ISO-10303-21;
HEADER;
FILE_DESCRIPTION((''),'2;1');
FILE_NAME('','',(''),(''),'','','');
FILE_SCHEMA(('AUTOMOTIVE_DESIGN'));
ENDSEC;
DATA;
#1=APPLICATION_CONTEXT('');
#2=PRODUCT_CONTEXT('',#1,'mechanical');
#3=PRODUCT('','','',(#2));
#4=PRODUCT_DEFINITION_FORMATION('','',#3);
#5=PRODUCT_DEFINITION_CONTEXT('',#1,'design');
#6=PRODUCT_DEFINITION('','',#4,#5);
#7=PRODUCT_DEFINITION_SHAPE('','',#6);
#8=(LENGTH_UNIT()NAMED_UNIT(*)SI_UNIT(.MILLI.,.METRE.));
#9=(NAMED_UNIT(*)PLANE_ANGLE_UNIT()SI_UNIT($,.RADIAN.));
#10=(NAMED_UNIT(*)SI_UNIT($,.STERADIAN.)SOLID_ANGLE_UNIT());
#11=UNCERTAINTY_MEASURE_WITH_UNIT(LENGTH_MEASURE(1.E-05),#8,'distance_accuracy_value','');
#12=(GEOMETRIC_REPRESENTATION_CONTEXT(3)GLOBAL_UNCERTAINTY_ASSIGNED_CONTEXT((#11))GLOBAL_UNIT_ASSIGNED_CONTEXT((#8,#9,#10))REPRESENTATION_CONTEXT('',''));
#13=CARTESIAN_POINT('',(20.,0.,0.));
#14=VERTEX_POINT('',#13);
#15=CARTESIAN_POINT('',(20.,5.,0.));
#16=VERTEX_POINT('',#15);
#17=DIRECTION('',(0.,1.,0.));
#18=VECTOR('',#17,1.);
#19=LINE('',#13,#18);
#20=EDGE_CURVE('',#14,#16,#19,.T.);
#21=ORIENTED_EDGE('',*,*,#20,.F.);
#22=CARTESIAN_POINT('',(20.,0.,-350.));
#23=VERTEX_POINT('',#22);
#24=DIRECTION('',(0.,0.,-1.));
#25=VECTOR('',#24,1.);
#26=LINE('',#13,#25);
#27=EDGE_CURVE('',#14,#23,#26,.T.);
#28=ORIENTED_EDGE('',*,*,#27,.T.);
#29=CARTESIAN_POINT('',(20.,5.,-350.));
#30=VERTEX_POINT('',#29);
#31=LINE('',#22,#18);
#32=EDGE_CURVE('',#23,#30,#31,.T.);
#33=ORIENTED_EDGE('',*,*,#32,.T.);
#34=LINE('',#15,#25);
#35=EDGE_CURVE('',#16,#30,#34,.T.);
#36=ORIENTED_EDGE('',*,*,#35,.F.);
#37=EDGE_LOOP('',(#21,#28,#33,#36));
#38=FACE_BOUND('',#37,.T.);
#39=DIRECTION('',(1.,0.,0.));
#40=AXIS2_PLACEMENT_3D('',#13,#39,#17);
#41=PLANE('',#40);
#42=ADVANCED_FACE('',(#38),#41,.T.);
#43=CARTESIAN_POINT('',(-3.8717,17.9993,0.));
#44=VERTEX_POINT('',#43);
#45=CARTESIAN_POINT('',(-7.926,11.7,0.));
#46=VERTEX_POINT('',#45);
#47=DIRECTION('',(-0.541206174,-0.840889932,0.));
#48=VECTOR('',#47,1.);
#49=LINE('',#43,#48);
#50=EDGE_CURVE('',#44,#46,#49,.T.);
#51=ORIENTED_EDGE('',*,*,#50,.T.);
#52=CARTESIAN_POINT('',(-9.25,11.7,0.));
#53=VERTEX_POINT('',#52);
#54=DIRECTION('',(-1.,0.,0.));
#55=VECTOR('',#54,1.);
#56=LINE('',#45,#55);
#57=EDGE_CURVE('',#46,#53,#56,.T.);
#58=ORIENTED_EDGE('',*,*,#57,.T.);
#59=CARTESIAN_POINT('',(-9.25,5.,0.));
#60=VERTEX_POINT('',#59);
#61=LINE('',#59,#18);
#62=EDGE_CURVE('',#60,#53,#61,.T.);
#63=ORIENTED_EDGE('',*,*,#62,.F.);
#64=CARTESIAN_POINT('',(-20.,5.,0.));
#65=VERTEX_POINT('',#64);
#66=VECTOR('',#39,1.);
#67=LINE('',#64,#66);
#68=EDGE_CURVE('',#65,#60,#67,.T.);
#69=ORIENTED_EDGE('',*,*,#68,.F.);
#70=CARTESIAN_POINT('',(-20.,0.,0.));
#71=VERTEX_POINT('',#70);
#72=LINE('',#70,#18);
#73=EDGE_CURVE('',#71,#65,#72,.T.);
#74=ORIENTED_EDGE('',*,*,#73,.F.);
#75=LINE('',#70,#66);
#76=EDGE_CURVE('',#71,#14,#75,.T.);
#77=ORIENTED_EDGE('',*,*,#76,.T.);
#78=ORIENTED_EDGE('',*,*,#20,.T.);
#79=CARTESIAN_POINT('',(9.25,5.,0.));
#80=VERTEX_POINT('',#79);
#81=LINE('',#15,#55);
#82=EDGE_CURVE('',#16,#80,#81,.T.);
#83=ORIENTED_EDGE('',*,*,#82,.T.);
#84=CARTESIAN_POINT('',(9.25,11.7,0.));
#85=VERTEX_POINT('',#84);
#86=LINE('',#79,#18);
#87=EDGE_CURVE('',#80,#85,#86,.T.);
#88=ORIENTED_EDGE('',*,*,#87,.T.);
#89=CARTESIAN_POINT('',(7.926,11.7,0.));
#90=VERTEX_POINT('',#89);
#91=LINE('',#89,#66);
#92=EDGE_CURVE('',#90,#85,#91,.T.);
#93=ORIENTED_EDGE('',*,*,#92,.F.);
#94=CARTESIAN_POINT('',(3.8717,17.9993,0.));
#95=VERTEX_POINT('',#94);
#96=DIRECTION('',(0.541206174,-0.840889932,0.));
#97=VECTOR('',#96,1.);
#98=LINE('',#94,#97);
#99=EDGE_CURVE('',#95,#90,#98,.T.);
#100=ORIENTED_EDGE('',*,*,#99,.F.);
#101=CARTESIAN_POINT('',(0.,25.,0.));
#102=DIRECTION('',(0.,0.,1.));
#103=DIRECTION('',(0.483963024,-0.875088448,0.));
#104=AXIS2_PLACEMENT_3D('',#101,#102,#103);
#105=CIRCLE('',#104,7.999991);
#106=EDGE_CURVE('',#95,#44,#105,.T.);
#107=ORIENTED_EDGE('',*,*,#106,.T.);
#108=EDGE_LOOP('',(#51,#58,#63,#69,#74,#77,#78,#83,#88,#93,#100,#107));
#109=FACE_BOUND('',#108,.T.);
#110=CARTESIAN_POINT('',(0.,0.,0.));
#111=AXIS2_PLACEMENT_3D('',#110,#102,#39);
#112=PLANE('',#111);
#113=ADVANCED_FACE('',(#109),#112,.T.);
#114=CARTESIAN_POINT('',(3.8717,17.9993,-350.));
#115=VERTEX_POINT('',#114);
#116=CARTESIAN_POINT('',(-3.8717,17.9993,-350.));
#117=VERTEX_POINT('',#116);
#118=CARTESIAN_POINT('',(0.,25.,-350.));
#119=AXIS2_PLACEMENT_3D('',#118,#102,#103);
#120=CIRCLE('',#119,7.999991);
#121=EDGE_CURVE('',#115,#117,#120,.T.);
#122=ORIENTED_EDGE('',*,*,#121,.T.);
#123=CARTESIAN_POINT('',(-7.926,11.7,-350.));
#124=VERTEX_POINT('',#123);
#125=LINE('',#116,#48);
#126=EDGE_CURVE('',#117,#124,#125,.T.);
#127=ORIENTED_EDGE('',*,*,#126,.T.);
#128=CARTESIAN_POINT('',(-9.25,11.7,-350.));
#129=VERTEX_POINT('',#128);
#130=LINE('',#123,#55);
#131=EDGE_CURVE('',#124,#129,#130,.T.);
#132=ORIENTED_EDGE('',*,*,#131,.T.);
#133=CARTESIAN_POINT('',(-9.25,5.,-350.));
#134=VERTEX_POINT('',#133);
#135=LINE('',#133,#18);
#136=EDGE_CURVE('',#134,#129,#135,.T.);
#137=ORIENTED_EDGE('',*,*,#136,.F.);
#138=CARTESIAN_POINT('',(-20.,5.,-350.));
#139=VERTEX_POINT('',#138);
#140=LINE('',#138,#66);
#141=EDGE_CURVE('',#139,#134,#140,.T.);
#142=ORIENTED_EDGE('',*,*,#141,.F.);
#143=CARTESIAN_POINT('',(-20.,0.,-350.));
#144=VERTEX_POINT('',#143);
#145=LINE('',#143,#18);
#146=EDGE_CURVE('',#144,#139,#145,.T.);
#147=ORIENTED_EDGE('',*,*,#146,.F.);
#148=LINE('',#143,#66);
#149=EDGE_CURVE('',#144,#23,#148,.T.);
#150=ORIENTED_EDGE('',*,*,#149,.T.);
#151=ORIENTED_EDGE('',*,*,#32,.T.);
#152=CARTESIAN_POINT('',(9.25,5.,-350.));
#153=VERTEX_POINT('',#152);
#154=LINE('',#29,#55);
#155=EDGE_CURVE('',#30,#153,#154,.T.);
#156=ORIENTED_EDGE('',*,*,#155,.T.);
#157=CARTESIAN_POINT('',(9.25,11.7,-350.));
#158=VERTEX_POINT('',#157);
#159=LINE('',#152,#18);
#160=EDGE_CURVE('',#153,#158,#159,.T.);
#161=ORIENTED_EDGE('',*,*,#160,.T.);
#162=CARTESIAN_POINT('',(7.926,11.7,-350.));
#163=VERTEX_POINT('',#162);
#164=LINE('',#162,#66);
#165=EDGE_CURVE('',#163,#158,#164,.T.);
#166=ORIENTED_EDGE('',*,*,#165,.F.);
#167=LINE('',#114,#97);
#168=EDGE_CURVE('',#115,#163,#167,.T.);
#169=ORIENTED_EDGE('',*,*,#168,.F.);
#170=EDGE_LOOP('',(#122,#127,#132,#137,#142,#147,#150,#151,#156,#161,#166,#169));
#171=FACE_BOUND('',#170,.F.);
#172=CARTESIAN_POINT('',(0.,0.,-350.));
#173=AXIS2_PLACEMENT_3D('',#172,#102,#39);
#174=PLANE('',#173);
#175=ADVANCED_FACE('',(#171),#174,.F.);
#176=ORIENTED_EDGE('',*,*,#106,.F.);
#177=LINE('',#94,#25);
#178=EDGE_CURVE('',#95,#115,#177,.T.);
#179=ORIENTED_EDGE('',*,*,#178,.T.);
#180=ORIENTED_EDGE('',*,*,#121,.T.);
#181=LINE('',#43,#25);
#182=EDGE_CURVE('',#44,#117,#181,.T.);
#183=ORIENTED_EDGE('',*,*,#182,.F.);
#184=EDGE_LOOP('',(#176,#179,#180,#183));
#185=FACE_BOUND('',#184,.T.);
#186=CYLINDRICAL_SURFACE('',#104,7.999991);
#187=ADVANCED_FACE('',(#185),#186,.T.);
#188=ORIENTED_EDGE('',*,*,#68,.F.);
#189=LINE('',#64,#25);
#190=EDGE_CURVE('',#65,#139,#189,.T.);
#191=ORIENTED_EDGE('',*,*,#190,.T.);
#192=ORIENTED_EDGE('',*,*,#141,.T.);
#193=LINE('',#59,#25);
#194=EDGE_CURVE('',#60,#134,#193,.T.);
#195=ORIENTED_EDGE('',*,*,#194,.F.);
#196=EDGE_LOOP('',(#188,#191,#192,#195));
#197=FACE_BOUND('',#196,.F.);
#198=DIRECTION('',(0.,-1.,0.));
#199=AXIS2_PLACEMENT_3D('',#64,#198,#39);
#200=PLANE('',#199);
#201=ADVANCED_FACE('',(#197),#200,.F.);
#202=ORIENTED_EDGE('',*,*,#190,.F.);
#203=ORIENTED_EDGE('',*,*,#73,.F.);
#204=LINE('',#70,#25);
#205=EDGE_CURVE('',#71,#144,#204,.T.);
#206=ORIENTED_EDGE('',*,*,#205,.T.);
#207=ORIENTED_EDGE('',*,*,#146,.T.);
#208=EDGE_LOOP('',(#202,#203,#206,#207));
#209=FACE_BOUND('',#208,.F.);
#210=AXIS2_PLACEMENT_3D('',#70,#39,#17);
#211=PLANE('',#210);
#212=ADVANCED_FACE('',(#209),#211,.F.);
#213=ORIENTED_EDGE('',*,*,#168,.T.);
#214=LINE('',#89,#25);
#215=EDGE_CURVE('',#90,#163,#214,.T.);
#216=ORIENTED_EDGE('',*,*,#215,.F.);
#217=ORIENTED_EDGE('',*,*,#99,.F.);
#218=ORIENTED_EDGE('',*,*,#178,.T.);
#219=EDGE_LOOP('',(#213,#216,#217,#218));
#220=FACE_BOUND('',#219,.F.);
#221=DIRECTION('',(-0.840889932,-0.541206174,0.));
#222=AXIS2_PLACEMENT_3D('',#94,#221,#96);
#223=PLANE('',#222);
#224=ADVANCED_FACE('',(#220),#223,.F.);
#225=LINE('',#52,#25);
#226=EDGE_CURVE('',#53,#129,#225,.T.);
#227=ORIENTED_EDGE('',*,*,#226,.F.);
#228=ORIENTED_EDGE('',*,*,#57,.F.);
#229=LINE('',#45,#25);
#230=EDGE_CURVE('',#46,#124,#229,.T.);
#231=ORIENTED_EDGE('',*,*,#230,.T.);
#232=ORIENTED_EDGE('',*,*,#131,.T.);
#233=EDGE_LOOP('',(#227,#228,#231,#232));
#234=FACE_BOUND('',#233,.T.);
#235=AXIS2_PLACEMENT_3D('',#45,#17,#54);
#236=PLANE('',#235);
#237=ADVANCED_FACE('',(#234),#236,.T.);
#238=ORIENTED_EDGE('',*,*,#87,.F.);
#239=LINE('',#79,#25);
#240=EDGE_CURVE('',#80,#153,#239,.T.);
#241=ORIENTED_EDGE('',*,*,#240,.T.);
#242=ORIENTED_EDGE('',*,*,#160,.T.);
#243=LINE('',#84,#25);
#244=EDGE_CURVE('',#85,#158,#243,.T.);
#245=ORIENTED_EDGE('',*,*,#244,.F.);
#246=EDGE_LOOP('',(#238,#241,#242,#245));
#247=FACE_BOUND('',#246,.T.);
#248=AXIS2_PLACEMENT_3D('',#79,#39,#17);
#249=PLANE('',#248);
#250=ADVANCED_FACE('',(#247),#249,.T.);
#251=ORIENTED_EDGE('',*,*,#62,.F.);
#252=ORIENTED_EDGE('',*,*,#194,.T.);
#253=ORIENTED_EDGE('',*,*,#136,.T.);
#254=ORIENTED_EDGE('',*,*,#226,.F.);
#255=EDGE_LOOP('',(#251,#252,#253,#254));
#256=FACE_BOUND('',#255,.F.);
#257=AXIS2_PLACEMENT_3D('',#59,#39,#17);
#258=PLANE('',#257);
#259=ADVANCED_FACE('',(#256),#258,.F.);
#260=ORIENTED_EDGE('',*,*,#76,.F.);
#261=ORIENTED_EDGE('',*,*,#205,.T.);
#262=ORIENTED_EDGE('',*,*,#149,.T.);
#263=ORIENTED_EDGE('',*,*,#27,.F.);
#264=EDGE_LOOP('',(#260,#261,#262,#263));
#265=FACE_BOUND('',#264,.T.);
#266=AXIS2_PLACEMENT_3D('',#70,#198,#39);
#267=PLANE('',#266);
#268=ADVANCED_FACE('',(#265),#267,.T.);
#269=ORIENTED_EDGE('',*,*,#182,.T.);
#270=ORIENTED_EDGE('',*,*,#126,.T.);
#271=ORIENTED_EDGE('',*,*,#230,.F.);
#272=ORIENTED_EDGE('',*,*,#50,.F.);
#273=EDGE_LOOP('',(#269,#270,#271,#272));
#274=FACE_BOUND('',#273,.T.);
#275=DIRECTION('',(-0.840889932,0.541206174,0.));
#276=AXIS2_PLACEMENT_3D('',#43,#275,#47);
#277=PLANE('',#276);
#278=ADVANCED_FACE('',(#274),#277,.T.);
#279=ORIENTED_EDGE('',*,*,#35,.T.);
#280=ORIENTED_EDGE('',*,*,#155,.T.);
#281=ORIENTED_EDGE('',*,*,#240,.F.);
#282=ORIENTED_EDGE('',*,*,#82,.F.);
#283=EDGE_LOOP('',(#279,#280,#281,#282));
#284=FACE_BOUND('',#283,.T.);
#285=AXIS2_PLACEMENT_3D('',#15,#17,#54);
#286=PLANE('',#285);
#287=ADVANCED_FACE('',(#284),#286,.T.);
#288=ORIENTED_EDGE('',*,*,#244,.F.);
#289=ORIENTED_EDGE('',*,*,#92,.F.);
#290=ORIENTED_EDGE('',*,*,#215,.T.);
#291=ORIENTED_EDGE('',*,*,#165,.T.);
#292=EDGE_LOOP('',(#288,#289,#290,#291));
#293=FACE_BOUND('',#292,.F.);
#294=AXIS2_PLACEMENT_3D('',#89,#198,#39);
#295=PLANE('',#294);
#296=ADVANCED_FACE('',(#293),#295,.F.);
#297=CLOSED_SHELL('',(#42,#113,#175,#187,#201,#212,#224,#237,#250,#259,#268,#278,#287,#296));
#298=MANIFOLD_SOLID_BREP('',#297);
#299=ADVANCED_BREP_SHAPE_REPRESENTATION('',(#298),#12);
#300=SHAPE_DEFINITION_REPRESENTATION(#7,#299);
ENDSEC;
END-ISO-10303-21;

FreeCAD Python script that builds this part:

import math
import FreeCAD as App
import Part
import Sketcher
from FreeCAD import Vector
Q = App.Units.Quantity

doc = App.newDocument("Part")
body = doc.addObject("PartDesign::Body", "Body")

# Sketch on XY plane
sketch1 = body.newObject("Sketcher::SketchObject", "Sketch")
sketch1.AttachmentSupport = (doc.getObject("XY_Plane"), [""])
sketch1.MapMode = "FlatFace"
sketch1.addGeometry([
    Part.LineSegment(Vector(-20, 5, 0), Vector(-20, 0, 0)),  # 0
    Part.LineSegment(Vector(-20, 0, 0), Vector(20, 0, 0)),  # 1
    Part.LineSegment(Vector(20, 0, 0), Vector(20, 5, 0)),  # 2
    Part.LineSegment(Vector(20, 5, 0), Vector(9.2, 5, 0)),  # 3
    Part.LineSegment(Vector(9.2, 5, 0), Vector(9.2, 11.7, 0)),  # 4
    Part.LineSegment(Vector(9.2, 11.7, 0), Vector(7.9, 11.7, 0)),  # 5
    Part.LineSegment(Vector(7.9, 11.7, 0), Vector(3.9, 18, 0)),  # 6
    Part.ArcOfCircle(Part.Circle(Vector(0, 25, 0), Vector(0, 0, 1), 8), math.radians(-61), math.radians(241)),  # 7
    Part.LineSegment(Vector(-3.9, 18, 0), Vector(-7.9, 11.7, 0)),  # 8
    Part.LineSegment(Vector(-7.9, 11.7, 0), Vector(-9.2, 11.7, 0)),  # 9
    Part.LineSegment(Vector(-9.2, 11.7, 0), Vector(-9.2, 5, 0)),  # 10
    Part.LineSegment(Vector(-9.2, 5, 0), Vector(-20, 5, 0)),  # 11
], False)
sketch1.addConstraint([
    Sketcher.Constraint("Coincident", 0, 2, 1, 1),
    Sketcher.Constraint("Coincident", 1, 2, 2, 1),
    Sketcher.Constraint("Coincident", 2, 2, 3, 1),
    Sketcher.Constraint("Coincident", 3, 2, 4, 1),
    Sketcher.Constraint("Coincident", 4, 2, 5, 1),
    Sketcher.Constraint("Coincident", 5, 2, 6, 1),
    Sketcher.Constraint("Coincident", 6, 2, 7, 1),
    Sketcher.Constraint("Coincident", 7, 2, 8, 1),
    Sketcher.Constraint("Coincident", 8, 2, 9, 1),
    Sketcher.Constraint("Coincident", 9, 2, 10, 1),
    Sketcher.Constraint("Coincident", 10, 2, 11, 1),
    Sketcher.Constraint("Coincident", 11, 2, 0, 1),
    Sketcher.Constraint("Vertical", 0),
    Sketcher.Constraint("Horizontal", 1),
    Sketcher.Constraint("Vertical", 2),
    Sketcher.Constraint("Horizontal", 3),
    Sketcher.Constraint("Vertical", 4),
    Sketcher.Constraint("Horizontal", 5),
    Sketcher.Constraint("Horizontal", 9),
    Sketcher.Constraint("Vertical", 10),
    Sketcher.Constraint("Horizontal", 11),
    Sketcher.Constraint("Symmetric", 0, 2, 1, 2, -1, 1),
    Sketcher.Constraint("Symmetric", 6, 2, 7, 2, -2),
    Sketcher.Constraint("Symmetric", 5, 2, 8, 2, -2),
    Sketcher.Constraint("Symmetric", 3, 2, 10, 2, -2),
    Sketcher.Constraint("Radius", 7, Q("8 mm")),
    Sketcher.Constraint("DistanceX", 1, 1, 1, 2, Q("40 mm")),
    Sketcher.Constraint("DistanceY", 0, 2, 0, 1, Q("5 mm")),
    Sketcher.Constraint("DistanceY", 4, 1, 4, 2, Q("6.7 mm")),
    Sketcher.Constraint("DistanceY", -1, 1, 7, 3, Q("25 mm")),
    Sketcher.Constraint("DistanceX", 3, 2, 3, 1, Q("10.75 mm")),
    Sketcher.Constraint("DistanceX", 5, 2, 5, 1, Q("1.324 mm")),
    Sketcher.Constraint("Distance", 6, Q("7.4912 mm")),
])
pad1 = body.newObject("PartDesign::Pad", "Pad")
pad1.Profile = sketch1
pad1.Length = 350
pad1.Reversed = True

doc.recompute()
